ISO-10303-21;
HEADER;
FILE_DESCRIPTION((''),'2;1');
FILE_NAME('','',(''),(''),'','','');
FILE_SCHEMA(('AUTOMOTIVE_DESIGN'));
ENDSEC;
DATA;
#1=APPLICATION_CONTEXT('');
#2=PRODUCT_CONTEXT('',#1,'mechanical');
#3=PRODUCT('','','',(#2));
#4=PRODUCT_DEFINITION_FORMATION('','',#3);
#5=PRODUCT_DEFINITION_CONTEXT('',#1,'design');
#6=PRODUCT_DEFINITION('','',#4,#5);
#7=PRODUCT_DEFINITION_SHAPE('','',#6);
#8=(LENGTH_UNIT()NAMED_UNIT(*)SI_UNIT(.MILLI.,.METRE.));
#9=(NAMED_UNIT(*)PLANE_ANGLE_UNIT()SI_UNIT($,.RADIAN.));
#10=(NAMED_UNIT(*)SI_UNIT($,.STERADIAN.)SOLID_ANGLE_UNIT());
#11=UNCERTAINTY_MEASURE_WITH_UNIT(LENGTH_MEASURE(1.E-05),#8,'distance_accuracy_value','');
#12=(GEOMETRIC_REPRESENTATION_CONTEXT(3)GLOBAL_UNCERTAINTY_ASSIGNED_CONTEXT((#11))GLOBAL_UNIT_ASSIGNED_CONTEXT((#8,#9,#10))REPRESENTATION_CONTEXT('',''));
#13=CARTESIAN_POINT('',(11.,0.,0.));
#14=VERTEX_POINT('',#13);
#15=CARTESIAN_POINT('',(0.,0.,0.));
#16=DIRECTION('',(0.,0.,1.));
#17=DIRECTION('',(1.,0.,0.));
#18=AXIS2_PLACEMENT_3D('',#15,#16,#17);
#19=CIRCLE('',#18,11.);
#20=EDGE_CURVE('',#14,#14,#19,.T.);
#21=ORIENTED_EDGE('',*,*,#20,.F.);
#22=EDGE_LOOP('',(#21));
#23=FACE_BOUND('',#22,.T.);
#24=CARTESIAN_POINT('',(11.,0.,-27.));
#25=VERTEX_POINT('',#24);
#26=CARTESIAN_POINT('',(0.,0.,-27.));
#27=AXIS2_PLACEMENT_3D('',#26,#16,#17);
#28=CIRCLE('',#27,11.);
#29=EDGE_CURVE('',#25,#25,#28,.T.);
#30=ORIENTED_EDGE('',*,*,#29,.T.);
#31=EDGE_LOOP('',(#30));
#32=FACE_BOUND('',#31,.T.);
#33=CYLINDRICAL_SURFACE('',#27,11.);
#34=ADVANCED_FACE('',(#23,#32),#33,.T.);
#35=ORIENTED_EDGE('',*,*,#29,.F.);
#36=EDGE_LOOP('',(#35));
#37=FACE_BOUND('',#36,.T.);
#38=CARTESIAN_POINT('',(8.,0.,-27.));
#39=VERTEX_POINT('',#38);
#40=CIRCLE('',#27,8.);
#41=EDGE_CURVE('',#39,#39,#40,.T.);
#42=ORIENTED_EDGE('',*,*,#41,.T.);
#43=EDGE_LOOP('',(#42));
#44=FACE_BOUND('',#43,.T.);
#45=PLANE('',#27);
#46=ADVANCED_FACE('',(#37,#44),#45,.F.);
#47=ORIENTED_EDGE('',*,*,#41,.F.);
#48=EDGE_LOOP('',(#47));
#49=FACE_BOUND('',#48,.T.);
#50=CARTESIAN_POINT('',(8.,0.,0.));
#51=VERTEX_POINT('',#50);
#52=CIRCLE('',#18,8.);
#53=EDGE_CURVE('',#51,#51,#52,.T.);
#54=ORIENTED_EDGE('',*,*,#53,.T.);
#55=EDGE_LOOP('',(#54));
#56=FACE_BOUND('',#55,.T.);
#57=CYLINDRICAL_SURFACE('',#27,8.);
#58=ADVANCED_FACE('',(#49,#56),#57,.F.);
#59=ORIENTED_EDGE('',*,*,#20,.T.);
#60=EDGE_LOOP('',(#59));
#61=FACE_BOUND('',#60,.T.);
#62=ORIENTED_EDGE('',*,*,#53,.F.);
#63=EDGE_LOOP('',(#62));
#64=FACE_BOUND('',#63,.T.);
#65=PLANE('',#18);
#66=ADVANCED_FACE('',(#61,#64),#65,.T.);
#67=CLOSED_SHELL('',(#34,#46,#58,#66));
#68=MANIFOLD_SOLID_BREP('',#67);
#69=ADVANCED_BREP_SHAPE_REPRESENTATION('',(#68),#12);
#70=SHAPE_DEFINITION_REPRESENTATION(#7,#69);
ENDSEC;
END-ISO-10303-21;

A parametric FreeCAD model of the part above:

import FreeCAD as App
import Part
import Sketcher
from FreeCAD import Vector
Q = App.Units.Quantity

doc = App.newDocument("Part")
params = doc.addObject("Spreadsheet::Sheet", "Params")
for row, (alias, value) in enumerate([
    ("sketch1_diameter", "22 mm"),
    ("sketch1_diameter2", "16 mm"),
    ("pad1_length", "27 mm"),
], start=1):
    params.set(f"A{row}", alias)
    params.set(f"B{row}", "=" + value)
    params.setAlias(f"B{row}", alias)

body = doc.addObject("PartDesign::Body", "Body")

# Sketch on XY plane
sketch1 = body.newObject("Sketcher::SketchObject", "Sketch")
sketch1.AttachmentSupport = (doc.getObject("XY_Plane"), [""])
sketch1.MapMode = "FlatFace"
sketch1.addGeometry(Part.Circle(Vector(0, 0, 0), Vector(0, 0, 1), 11), False)
sketch1.addGeometry(Part.Circle(Vector(0, 0, 0), Vector(0, 0, 1), 8), False)
sketch1.addConstraint(Sketcher.Constraint("Coincident", 0, 3, -1, 1))
sketch1.addConstraint(Sketcher.Constraint("Coincident", 1, 3, -1, 1))
sketch1.addConstraint(Sketcher.Constraint("Diameter", 0, Q("22 mm")))
sketch1.addConstraint(Sketcher.Constraint("Diameter", 1, Q("16 mm")))
sketch1.setExpression("Constraints[2]", "Params.sketch1_diameter")
sketch1.setExpression("Constraints[3]", "Params.sketch1_diameter2")
pad1 = body.newObject("PartDesign::Pad", "Pad")
pad1.Profile = sketch1
pad1.setExpression("Length", "Params.pad1_length")
pad1.Reversed = True

doc.recompute()
